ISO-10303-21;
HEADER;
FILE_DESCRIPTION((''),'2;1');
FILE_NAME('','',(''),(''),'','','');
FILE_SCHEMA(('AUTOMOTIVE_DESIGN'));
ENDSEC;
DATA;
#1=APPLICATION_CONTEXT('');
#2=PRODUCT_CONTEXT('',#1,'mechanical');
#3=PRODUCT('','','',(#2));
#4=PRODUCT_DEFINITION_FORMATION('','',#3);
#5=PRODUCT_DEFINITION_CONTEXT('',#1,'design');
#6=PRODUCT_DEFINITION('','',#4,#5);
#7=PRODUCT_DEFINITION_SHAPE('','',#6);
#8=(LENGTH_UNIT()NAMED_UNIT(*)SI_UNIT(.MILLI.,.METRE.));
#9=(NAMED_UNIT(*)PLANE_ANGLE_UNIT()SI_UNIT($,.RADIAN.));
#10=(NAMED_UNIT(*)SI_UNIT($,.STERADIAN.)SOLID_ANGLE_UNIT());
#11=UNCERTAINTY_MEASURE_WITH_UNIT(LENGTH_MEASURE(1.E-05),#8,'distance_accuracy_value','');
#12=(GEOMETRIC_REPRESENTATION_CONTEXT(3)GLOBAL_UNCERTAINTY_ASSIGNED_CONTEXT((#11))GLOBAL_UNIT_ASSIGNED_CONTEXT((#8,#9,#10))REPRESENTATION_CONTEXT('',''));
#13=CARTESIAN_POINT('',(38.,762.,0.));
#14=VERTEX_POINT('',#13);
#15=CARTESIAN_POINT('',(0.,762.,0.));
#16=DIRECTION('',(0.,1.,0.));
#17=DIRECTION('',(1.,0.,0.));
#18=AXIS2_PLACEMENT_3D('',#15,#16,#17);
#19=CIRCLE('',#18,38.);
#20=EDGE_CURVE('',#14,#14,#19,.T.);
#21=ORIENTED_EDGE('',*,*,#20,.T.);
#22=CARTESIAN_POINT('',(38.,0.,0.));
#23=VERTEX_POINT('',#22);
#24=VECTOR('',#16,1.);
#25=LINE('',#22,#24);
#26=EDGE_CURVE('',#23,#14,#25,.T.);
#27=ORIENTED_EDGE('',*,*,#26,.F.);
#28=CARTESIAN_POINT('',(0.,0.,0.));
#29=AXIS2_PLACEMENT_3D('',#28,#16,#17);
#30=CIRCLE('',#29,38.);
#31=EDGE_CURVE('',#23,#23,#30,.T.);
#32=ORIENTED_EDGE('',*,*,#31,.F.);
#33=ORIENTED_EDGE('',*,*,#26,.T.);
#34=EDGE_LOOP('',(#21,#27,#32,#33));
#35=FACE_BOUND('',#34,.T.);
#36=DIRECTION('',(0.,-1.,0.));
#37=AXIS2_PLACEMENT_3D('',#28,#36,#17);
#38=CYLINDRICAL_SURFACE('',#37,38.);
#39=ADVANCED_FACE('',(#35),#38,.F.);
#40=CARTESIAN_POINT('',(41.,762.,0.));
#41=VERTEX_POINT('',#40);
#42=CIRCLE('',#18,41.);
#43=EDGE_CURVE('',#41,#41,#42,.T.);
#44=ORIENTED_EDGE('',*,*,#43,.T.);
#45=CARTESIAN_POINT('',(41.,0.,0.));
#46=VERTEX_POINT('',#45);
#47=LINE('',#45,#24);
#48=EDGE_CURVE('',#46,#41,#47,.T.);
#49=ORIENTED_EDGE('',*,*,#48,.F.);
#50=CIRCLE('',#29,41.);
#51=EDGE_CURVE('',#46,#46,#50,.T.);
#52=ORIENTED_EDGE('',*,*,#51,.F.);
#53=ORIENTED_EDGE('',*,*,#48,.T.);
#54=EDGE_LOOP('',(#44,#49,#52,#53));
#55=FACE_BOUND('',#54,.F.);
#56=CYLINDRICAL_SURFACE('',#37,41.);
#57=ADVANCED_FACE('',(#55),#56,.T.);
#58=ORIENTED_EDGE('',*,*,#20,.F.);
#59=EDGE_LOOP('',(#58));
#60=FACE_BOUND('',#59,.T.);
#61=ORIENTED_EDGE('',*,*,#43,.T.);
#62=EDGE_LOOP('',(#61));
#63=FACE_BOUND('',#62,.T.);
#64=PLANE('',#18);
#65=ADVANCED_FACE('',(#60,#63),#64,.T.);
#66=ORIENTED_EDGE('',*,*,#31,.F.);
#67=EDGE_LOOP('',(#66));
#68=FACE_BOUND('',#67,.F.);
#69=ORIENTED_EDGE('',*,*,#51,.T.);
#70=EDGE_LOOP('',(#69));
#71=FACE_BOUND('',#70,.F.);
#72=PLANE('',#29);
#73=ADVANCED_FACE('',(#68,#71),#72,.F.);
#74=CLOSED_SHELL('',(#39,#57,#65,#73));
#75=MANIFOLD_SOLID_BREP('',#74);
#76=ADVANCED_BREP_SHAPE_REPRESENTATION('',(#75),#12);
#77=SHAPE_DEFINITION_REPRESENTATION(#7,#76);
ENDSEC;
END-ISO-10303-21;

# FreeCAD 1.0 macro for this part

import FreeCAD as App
import Part
import Sketcher

V = App.Vector

doc = App.newDocument("Part")
body = doc.addObject("PartDesign::Body", "Body")

# Sketch on XZ plane
sketch1 = doc.addObject("Sketcher::SketchObject", "Sketch")
body.addObject(sketch1)
sketch1.AttachmentSupport = (doc.XZ_Plane, [""])
sketch1.MapMode = "FlatFace"
sketch1.addGeometry([
    Part.Circle(V(0, 0, 0), V(0, 0, 1), 41),
    Part.Circle(V(0, 0, 0), V(0, 0, 1), 38),
], False)
sketch1.addConstraint([
    Sketcher.Constraint("Coincident", 0, 3, -1, 1),
    Sketcher.Constraint("Coincident", 1, 3, -1, 1),
    Sketcher.Constraint("Diameter", 0, 82.0),
    Sketcher.Constraint("Diameter", 1, 76.0),
])
pad1 = doc.addObject("PartDesign::Pad", "Pad")
body.addObject(pad1)
pad1.Profile = sketch1
pad1.Length = 762
pad1.Reversed = True

doc.recompute()
